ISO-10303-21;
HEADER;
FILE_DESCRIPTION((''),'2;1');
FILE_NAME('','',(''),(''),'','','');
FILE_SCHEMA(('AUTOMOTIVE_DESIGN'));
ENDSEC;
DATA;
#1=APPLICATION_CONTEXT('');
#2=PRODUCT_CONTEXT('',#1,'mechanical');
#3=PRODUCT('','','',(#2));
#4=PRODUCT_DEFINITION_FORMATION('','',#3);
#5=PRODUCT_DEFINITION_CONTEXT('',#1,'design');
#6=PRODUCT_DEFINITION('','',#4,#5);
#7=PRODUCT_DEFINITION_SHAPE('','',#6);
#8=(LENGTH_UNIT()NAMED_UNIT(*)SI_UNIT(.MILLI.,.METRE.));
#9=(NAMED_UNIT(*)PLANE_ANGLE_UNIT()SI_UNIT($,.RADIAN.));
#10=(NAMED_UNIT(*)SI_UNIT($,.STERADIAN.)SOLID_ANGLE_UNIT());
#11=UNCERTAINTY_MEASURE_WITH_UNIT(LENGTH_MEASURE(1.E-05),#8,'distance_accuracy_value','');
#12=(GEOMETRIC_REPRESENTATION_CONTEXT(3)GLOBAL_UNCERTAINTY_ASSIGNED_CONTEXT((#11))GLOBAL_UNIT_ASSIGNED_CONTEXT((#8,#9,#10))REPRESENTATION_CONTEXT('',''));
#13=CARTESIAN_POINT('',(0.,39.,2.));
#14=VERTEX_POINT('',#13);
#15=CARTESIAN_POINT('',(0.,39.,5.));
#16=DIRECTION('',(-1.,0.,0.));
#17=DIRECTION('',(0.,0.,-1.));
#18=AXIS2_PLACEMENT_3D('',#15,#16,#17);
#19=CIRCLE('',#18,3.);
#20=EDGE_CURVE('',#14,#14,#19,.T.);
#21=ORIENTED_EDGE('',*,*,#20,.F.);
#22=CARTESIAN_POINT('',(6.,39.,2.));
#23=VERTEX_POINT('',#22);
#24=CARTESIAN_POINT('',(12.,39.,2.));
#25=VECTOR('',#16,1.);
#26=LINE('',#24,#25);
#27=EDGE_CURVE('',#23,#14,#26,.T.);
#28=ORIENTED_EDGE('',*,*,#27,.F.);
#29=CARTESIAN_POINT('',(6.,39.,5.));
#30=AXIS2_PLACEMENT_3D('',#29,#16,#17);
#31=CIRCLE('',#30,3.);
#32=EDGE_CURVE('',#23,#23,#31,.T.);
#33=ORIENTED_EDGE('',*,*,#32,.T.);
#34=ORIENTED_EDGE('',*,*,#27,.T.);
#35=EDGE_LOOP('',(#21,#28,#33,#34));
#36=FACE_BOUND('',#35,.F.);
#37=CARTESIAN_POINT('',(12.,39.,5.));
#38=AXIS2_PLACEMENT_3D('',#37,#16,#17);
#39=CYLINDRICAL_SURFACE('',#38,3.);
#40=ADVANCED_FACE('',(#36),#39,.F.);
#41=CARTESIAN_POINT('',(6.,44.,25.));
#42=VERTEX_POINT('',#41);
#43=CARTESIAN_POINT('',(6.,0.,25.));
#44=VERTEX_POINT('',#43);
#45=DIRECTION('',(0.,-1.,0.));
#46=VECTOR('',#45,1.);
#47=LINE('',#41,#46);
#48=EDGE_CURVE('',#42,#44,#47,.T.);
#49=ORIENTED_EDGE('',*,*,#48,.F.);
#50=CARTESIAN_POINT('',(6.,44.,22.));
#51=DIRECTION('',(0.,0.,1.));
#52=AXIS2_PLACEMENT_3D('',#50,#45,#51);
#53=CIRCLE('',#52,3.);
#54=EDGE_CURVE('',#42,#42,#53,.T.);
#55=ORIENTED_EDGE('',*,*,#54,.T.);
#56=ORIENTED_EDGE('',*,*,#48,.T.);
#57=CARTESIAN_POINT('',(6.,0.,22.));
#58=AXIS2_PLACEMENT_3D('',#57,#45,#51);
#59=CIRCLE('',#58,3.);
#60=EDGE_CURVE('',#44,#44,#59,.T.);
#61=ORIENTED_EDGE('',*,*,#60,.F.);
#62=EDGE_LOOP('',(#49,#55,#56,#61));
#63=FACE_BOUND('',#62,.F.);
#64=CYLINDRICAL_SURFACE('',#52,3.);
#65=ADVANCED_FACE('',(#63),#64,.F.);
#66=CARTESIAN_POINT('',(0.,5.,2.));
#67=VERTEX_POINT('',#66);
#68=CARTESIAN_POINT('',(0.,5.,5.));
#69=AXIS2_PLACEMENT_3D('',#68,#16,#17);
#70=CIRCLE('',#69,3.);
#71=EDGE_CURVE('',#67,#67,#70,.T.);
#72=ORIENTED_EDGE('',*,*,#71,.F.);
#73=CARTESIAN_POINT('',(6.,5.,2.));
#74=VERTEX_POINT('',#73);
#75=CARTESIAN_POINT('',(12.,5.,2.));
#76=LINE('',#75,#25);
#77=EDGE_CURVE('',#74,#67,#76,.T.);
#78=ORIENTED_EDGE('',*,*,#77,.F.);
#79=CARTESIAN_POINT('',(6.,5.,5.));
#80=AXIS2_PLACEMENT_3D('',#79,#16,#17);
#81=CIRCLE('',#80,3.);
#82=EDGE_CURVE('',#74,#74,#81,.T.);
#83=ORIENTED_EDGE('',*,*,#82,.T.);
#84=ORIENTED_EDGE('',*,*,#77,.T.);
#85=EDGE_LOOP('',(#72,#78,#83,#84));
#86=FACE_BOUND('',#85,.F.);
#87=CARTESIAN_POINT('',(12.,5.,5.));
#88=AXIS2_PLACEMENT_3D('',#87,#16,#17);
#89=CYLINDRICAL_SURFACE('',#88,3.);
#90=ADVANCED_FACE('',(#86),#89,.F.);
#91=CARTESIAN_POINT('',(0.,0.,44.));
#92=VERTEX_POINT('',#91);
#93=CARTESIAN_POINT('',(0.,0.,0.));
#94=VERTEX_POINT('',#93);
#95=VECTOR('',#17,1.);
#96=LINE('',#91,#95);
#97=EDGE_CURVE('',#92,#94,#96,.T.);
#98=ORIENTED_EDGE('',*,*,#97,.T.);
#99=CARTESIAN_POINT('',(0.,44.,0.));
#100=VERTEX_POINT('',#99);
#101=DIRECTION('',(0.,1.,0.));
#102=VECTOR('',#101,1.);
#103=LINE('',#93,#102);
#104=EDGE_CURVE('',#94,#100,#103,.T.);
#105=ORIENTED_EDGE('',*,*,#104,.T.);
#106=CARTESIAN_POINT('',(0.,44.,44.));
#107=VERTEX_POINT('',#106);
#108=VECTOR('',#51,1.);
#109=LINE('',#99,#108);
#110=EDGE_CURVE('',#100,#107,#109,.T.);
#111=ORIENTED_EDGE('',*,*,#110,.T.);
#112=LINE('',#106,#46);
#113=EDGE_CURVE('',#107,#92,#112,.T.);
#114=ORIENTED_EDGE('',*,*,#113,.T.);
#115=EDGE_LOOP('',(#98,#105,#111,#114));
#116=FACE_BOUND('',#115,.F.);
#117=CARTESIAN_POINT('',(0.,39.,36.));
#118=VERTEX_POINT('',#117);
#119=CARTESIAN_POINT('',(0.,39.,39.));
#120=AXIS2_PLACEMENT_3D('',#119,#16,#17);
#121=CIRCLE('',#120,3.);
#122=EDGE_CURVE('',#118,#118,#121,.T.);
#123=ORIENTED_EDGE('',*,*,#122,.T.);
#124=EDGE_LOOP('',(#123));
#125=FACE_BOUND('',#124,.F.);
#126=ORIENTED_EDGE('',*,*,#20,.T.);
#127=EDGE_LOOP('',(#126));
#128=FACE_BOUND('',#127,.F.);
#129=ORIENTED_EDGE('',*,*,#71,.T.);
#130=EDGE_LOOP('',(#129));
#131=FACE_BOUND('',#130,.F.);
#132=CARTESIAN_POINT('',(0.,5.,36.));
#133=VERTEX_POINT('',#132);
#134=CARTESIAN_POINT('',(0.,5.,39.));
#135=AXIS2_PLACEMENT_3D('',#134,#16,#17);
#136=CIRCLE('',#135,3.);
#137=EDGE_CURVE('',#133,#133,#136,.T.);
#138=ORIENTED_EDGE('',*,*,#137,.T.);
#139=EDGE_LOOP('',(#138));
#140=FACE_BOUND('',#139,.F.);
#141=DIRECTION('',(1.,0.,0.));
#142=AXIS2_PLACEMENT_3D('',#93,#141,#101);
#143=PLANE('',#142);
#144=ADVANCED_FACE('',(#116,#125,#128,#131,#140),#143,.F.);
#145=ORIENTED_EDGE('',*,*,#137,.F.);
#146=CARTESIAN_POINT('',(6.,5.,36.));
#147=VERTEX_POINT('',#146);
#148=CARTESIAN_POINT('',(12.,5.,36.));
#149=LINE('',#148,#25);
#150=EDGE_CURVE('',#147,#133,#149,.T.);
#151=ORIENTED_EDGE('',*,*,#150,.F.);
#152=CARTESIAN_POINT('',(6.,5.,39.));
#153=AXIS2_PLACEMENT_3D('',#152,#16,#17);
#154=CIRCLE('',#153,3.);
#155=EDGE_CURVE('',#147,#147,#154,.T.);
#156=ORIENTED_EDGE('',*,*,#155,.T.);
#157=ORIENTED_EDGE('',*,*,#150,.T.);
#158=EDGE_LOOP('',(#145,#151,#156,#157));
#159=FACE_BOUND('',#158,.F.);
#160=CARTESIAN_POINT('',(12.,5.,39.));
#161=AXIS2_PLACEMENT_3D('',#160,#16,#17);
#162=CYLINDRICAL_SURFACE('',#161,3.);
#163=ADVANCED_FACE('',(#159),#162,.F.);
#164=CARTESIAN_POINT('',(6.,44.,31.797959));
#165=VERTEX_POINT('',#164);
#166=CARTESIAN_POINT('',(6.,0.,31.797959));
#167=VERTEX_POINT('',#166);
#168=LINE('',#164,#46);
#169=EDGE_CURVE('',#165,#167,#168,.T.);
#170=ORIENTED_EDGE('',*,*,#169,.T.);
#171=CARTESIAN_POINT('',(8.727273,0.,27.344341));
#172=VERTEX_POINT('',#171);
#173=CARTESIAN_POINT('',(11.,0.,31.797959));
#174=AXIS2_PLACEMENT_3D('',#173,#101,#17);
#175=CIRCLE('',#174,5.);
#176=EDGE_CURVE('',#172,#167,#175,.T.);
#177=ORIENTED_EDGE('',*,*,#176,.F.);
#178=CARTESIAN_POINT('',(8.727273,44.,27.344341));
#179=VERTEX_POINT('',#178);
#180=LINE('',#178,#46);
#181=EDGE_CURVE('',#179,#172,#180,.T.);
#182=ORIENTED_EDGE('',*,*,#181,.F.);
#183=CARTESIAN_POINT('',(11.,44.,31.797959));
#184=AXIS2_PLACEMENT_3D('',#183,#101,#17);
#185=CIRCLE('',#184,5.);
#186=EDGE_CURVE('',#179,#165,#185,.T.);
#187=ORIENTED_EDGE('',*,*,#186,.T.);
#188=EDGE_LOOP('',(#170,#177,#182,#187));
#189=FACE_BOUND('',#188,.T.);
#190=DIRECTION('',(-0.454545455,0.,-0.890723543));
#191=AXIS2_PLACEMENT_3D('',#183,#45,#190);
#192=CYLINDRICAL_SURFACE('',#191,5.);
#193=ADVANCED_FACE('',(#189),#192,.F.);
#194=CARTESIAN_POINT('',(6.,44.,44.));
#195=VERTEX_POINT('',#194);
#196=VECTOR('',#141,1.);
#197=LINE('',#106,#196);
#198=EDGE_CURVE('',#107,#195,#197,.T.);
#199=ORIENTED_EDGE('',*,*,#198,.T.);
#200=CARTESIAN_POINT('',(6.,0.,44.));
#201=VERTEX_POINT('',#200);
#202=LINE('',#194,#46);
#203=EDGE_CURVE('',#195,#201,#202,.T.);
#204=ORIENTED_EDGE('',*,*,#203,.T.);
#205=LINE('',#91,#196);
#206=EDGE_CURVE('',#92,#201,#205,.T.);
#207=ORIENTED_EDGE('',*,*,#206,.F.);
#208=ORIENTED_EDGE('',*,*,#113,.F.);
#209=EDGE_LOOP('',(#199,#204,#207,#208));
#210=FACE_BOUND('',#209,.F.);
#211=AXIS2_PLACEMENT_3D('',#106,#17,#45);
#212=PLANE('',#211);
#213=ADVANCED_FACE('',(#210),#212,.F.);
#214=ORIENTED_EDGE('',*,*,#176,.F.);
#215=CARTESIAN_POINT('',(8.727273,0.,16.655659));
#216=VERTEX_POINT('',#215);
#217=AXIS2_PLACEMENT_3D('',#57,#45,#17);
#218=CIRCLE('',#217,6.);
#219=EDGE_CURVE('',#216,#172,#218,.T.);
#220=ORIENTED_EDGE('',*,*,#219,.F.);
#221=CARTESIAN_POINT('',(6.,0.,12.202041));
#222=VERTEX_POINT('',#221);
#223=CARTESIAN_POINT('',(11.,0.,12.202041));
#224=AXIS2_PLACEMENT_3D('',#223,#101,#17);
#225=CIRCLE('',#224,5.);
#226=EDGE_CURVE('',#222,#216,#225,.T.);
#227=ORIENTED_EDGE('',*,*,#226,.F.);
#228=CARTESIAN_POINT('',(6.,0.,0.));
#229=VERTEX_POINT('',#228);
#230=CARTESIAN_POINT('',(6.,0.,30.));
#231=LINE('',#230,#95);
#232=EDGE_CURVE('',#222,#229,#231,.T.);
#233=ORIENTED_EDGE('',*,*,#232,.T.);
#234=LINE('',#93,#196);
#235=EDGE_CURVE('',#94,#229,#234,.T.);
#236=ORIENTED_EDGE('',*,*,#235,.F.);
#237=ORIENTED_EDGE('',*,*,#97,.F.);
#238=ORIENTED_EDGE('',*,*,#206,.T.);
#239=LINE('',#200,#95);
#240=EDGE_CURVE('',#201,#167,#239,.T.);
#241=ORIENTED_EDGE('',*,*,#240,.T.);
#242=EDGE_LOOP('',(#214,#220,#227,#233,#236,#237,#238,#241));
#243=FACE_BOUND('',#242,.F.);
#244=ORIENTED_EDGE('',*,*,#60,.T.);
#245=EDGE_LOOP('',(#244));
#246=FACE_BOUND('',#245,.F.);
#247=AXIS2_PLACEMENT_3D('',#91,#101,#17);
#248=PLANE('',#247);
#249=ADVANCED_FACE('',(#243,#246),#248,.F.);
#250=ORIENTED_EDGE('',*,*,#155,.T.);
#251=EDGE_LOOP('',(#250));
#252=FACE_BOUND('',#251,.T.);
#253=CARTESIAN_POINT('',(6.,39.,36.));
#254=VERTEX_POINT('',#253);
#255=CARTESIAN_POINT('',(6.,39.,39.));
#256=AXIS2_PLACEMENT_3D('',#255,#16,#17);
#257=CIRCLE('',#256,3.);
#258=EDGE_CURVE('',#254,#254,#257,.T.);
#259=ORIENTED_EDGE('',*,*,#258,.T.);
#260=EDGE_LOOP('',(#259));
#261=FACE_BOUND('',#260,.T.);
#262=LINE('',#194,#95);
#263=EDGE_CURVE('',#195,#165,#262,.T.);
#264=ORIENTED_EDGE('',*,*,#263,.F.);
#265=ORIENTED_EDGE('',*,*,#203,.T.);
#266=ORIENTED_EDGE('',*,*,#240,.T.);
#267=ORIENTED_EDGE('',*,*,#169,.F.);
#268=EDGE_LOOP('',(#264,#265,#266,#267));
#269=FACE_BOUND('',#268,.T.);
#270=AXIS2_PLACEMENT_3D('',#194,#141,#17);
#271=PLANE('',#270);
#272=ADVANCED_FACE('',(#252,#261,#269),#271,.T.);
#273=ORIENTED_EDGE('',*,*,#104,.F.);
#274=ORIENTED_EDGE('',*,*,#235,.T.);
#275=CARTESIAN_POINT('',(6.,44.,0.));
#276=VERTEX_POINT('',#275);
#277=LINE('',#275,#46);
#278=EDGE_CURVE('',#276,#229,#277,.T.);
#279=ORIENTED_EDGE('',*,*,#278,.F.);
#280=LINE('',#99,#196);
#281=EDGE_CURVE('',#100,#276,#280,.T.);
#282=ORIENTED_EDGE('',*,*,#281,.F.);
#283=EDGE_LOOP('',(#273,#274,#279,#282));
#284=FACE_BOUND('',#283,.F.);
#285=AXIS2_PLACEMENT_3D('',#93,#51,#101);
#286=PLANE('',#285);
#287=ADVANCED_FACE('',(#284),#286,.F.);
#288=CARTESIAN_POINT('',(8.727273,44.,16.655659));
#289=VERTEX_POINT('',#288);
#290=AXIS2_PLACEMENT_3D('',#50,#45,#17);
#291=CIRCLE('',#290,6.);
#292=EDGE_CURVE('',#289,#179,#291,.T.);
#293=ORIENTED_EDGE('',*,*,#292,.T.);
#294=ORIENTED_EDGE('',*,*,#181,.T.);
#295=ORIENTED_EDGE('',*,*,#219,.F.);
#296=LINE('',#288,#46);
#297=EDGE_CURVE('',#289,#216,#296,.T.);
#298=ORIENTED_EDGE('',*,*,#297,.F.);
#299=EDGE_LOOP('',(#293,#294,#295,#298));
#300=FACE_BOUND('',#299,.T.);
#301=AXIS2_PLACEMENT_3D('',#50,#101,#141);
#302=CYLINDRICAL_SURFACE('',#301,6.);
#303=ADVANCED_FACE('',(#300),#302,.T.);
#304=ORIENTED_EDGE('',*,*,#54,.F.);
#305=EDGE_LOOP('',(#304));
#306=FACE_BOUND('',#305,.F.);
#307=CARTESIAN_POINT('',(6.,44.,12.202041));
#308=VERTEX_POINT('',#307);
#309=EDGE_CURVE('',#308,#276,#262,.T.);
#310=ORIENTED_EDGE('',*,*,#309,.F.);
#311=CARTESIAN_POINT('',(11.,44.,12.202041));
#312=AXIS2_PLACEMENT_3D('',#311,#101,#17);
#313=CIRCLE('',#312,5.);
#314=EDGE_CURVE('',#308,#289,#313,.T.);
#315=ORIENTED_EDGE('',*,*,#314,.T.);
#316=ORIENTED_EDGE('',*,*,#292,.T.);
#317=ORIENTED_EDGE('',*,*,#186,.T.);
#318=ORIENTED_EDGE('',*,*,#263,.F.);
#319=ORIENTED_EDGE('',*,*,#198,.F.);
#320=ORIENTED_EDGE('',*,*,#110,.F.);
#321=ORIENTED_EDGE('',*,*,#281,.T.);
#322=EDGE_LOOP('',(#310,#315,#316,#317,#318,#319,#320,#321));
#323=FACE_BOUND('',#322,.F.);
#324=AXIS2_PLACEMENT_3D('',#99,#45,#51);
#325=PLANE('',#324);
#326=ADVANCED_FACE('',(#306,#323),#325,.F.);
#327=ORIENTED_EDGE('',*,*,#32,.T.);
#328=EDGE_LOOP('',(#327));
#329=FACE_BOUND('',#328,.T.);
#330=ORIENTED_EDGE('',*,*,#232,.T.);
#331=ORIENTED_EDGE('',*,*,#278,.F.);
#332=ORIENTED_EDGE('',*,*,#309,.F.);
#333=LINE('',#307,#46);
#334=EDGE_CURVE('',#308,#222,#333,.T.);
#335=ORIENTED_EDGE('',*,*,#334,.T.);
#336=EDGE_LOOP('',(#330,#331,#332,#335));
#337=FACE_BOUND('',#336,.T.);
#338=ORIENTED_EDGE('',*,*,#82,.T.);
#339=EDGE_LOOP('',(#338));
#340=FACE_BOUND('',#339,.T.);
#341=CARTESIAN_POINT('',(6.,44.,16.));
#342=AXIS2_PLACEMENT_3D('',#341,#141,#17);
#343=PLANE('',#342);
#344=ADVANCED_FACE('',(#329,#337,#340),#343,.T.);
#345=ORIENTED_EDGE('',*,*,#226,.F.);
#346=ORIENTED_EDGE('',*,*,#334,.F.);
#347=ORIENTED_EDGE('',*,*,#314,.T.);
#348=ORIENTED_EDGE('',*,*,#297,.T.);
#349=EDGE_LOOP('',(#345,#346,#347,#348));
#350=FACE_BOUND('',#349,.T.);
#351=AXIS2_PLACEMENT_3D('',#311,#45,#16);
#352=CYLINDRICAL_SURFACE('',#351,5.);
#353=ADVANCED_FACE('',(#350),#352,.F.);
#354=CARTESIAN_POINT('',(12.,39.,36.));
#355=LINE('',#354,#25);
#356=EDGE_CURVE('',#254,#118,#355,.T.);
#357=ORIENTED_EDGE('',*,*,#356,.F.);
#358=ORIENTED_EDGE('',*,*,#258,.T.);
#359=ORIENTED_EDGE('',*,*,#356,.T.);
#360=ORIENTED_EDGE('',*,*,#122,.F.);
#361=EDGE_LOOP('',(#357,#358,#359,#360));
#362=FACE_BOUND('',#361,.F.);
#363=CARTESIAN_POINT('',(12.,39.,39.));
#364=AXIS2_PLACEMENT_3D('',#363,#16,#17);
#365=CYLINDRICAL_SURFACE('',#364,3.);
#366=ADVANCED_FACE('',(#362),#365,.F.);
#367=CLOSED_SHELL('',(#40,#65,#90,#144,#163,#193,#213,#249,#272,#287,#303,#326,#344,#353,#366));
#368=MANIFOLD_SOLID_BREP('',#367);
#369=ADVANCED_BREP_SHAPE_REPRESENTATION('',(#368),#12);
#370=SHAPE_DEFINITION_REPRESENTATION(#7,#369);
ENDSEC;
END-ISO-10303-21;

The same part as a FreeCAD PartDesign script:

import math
import FreeCAD as App
import Part
import Sketcher
Q = App.Units.Quantity


def edges_at(feature, points):
    """Names of the edges that pass closest to the given points."""
    edges = feature.Shape.Edges
    near = lambda p: min(range(len(edges)), key=lambda i: edges[i].distToShape(Part.Vertex(*p))[0])
    return sorted({f"Edge{near(p) + 1}" for p in points})

doc = App.newDocument("Part")
body = doc.addObject("PartDesign::Body", "Body")

sketch1 = body.newObject("Sketcher::SketchObject", "Sketch")
sketch1.AttachmentSupport = (doc.getObject("YZ_Plane"), [""])
sketch1.MapMode = "FlatFace"
sketch1.addGeometry(Part.LineSegment(App.Vector(0, 44, 0), App.Vector(0, 0, 0)), False)
sketch1.addGeometry(Part.LineSegment(App.Vector(0, 0, 0), App.Vector(44, 0, 0)), False)
sketch1.addGeometry(Part.LineSegment(App.Vector(44, 0, 0), App.Vector(44, 44, 0)), False)
sketch1.addGeometry(Part.LineSegment(App.Vector(44, 44, 0), App.Vector(0, 44, 0)), False)
sketch1.addConstraint(Sketcher.Constraint("Coincident", 0, 2, 1, 1))
sketch1.addConstraint(Sketcher.Constraint("Coincident", 1, 2, 2, 1))
sketch1.addConstraint(Sketcher.Constraint("Coincident", 2, 2, 3, 1))
sketch1.addConstraint(Sketcher.Constraint("Coincident", 3, 2, 0, 1))
sketch1.addConstraint(Sketcher.Constraint("Vertical", 0))
sketch1.addConstraint(Sketcher.Constraint("Horizontal", 1))
sketch1.addConstraint(Sketcher.Constraint("Vertical", 2))
sketch1.addConstraint(Sketcher.Constraint("Horizontal", 3))
sketch1.addConstraint(Sketcher.Constraint("Coincident", 0, 2, -1, 1))
sketch1.addConstraint(Sketcher.Constraint("Equal", 3, 0))
sketch1.addConstraint(Sketcher.Constraint("DistanceX", 1, 1, 1, 2, Q("44 mm")))
pad1 = body.newObject("PartDesign::Pad", "Pad")
pad1.Profile = sketch1
pad1.Length = 12

sketch2 = body.newObject("Sketcher::SketchObject", "Sketch001")
sketch2.AttachmentSupport = (doc.getObject("YZ_Plane"), [""])
sketch2.MapMode = "FlatFace"
sketch2.AttachmentOffset = App.Placement(App.Vector(0, 0, 12), App.Rotation())
sketch2.addGeometry(Part.Circle(App.Vector(5, 5, 0), App.Vector(0, 0, 1), 3), False)
sketch2.addGeometry(Part.Circle(App.Vector(5, 39, 0), App.Vector(0, 0, 1), 3), False)
sketch2.addGeometry(Part.Circle(App.Vector(39, 39, 0), App.Vector(0, 0, 1), 3), False)
sketch2.addGeometry(Part.Circle(App.Vector(39, 5, 0), App.Vector(0, 0, 1), 3), False)
sketch2.addConstraint(Sketcher.Constraint("Equal", 0, 1))
sketch2.addConstraint(Sketcher.Constraint("Equal", 1, 2))
sketch2.addConstraint(Sketcher.Constraint("Equal", 2, 3))
sketch2.addConstraint(Sketcher.Constraint("Horizontal", 1, 3, 2, 3))
sketch2.addConstraint(Sketcher.Constraint("Horizontal", 0, 3, 3, 3))
sketch2.addConstraint(Sketcher.Constraint("Vertical", 0, 3, 1, 3))
sketch2.addConstraint(Sketcher.Constraint("Vertical", 2, 3, 3, 3))
sketch2.addConstraint(Sketcher.Constraint("Diameter", 0, Q("6 mm")))
sketch2.addConstraint(Sketcher.Constraint("DistanceX", -1, 1, 0, 3, Q("5 mm")))
sketch2.addConstraint(Sketcher.Constraint("DistanceY", -1, 1, 0, 3, Q("5 mm")))
sketch2.addConstraint(Sketcher.Constraint("DistanceY", -1, 1, 1, 3, Q("39 mm")))
sketch2.addConstraint(Sketcher.Constraint("DistanceX", -1, 1, 2, 3, Q("39 mm")))
doc.recompute()
hole = body.newObject("PartDesign::Hole", "Hole")
hole.Profile = sketch2
hole.ThreadType = "None"
hole.Diameter = 6
hole.DepthType = "ThroughAll"

sketch3 = body.newObject("Sketcher::SketchObject", "Sketch002")
sketch3.AttachmentSupport = (doc.getObject("XZ_Plane"), [""])
sketch3.MapMode = "FlatFace"
sketch3.AttachmentOffset = App.Placement(App.Vector(0, 0, -44), App.Rotation())
sketch3.addGeometry(Part.Circle(App.Vector(6, 22, 0), App.Vector(0, 0, 1), 3), False)
sketch3.addConstraint(Sketcher.Constraint("Diameter", 0, Q("6 mm")))
sketch3.addConstraint(Sketcher.Constraint("DistanceX", -1, 1, 0, 3, Q("6 mm")))
sketch3.addConstraint(Sketcher.Constraint("DistanceY", -1, 1, 0, 3, Q("22 mm")))
doc.recompute()
hole2 = body.newObject("PartDesign::Hole", "Hole001")
hole2.Profile = sketch3
hole2.ThreadType = "None"
hole2.Diameter = 6
hole2.DepthType = "ThroughAll"
hole2.Reversed = True

sketch4 = body.newObject("Sketcher::SketchObject", "Sketch003")
sketch4.AttachmentSupport = (doc.getObject("XZ_Plane"), [""])
sketch4.MapMode = "FlatFace"
sketch4.AttachmentOffset = App.Placement(App.Vector(0, 0, -44), App.Rotation())
sketch4.addGeometry(Part.LineSegment(App.Vector(6, 0, 0), App.Vector(6, 16, 0)), False)
sketch4.addGeometry(Part.ArcOfCircle(Part.Circle(App.Vector(6, 22, 0), App.Vector(0, 0, 1), 6), math.radians(-90), math.radians(0)), False)
sketch4.addGeometry(Part.LineSegment(App.Vector(12, 22, 0), App.Vector(12, 0, 0)), False)
sketch4.addGeometry(Part.LineSegment(App.Vector(12, 0, 0), App.Vector(6, 0, 0)), False)
sketch4.addGeometry(Part.ArcOfCircle(Part.Circle(App.Vector(6, 22, 0), App.Vector(0, 0, 1), 6), math.radians(0), math.radians(90)), False)
sketch4.addGeometry(Part.LineSegment(App.Vector(6, 28, 0), App.Vector(6, 44, 0)), False)
sketch4.addGeometry(Part.LineSegment(App.Vector(6, 44, 0), App.Vector(12, 44, 0)), False)
sketch4.addGeometry(Part.LineSegment(App.Vector(12, 44, 0), App.Vector(12, 22, 0)), False)
sketch4.addConstraint(Sketcher.Constraint("Coincident", 0, 2, 1, 1))
sketch4.addConstraint(Sketcher.Constraint("Tangent", 1, 2, 2, 1))
sketch4.addConstraint(Sketcher.Constraint("Coincident", 2, 2, 3, 1))
sketch4.addConstraint(Sketcher.Constraint("Coincident", 3, 2, 0, 1))
sketch4.addConstraint(Sketcher.Constraint("Coincident", 4, 2, 5, 1))
sketch4.addConstraint(Sketcher.Constraint("Coincident", 5, 2, 6, 1))
sketch4.addConstraint(Sketcher.Constraint("Coincident", 6, 2, 7, 1))
sketch4.addConstraint(Sketcher.Constraint("Tangent", 7, 2, 4, 1))
sketch4.addConstraint(Sketcher.Constraint("Vertical", 0))
sketch4.addConstraint(Sketcher.Constraint("Vertical", 2))
sketch4.addConstraint(Sketcher.Constraint("Horizontal", 3))
sketch4.addConstraint(Sketcher.Constraint("Vertical", 5))
sketch4.addConstraint(Sketcher.Constraint("Horizontal", 6))
sketch4.addConstraint(Sketcher.Constraint("Vertical", 7))
sketch4.addConstraint(Sketcher.Constraint("Coincident", 4, 3, 1, 3))
sketch4.addConstraint(Sketcher.Constraint("Equal", 1, 4))
sketch4.addConstraint(Sketcher.Constraint("PointOnObject", 2, 2, -1))
sketch4.addConstraint(Sketcher.Constraint("Vertical", 4, 3, 0, 2))
sketch4.addConstraint(Sketcher.Constraint("Vertical", 3, 2, 4, 2))
sketch4.addConstraint(Sketcher.Constraint("Equal", 0, 5))
sketch4.addConstraint(Sketcher.Constraint("Radius", 1, Q("6 mm")))
sketch4.addConstraint(Sketcher.Constraint("DistanceX", -1, 1, 1, 3, Q("6 mm")))
sketch4.addConstraint(Sketcher.Constraint("DistanceY", 0, 1, 0, 2, Q("16 mm")))
pocket1 = body.newObject("PartDesign::Pocket", "Pocket")
pocket1.Profile = sketch4
pocket1.Length = 50
pocket1.Reversed = True
doc.recompute()

fillet = body.newObject("PartDesign::Fillet", "Fillet")
fillet.Base = (pocket1, edges_at(pocket1, [(6, 22, 28), (6, 22, 16)]))
fillet.Radius = 5

doc.recompute()
